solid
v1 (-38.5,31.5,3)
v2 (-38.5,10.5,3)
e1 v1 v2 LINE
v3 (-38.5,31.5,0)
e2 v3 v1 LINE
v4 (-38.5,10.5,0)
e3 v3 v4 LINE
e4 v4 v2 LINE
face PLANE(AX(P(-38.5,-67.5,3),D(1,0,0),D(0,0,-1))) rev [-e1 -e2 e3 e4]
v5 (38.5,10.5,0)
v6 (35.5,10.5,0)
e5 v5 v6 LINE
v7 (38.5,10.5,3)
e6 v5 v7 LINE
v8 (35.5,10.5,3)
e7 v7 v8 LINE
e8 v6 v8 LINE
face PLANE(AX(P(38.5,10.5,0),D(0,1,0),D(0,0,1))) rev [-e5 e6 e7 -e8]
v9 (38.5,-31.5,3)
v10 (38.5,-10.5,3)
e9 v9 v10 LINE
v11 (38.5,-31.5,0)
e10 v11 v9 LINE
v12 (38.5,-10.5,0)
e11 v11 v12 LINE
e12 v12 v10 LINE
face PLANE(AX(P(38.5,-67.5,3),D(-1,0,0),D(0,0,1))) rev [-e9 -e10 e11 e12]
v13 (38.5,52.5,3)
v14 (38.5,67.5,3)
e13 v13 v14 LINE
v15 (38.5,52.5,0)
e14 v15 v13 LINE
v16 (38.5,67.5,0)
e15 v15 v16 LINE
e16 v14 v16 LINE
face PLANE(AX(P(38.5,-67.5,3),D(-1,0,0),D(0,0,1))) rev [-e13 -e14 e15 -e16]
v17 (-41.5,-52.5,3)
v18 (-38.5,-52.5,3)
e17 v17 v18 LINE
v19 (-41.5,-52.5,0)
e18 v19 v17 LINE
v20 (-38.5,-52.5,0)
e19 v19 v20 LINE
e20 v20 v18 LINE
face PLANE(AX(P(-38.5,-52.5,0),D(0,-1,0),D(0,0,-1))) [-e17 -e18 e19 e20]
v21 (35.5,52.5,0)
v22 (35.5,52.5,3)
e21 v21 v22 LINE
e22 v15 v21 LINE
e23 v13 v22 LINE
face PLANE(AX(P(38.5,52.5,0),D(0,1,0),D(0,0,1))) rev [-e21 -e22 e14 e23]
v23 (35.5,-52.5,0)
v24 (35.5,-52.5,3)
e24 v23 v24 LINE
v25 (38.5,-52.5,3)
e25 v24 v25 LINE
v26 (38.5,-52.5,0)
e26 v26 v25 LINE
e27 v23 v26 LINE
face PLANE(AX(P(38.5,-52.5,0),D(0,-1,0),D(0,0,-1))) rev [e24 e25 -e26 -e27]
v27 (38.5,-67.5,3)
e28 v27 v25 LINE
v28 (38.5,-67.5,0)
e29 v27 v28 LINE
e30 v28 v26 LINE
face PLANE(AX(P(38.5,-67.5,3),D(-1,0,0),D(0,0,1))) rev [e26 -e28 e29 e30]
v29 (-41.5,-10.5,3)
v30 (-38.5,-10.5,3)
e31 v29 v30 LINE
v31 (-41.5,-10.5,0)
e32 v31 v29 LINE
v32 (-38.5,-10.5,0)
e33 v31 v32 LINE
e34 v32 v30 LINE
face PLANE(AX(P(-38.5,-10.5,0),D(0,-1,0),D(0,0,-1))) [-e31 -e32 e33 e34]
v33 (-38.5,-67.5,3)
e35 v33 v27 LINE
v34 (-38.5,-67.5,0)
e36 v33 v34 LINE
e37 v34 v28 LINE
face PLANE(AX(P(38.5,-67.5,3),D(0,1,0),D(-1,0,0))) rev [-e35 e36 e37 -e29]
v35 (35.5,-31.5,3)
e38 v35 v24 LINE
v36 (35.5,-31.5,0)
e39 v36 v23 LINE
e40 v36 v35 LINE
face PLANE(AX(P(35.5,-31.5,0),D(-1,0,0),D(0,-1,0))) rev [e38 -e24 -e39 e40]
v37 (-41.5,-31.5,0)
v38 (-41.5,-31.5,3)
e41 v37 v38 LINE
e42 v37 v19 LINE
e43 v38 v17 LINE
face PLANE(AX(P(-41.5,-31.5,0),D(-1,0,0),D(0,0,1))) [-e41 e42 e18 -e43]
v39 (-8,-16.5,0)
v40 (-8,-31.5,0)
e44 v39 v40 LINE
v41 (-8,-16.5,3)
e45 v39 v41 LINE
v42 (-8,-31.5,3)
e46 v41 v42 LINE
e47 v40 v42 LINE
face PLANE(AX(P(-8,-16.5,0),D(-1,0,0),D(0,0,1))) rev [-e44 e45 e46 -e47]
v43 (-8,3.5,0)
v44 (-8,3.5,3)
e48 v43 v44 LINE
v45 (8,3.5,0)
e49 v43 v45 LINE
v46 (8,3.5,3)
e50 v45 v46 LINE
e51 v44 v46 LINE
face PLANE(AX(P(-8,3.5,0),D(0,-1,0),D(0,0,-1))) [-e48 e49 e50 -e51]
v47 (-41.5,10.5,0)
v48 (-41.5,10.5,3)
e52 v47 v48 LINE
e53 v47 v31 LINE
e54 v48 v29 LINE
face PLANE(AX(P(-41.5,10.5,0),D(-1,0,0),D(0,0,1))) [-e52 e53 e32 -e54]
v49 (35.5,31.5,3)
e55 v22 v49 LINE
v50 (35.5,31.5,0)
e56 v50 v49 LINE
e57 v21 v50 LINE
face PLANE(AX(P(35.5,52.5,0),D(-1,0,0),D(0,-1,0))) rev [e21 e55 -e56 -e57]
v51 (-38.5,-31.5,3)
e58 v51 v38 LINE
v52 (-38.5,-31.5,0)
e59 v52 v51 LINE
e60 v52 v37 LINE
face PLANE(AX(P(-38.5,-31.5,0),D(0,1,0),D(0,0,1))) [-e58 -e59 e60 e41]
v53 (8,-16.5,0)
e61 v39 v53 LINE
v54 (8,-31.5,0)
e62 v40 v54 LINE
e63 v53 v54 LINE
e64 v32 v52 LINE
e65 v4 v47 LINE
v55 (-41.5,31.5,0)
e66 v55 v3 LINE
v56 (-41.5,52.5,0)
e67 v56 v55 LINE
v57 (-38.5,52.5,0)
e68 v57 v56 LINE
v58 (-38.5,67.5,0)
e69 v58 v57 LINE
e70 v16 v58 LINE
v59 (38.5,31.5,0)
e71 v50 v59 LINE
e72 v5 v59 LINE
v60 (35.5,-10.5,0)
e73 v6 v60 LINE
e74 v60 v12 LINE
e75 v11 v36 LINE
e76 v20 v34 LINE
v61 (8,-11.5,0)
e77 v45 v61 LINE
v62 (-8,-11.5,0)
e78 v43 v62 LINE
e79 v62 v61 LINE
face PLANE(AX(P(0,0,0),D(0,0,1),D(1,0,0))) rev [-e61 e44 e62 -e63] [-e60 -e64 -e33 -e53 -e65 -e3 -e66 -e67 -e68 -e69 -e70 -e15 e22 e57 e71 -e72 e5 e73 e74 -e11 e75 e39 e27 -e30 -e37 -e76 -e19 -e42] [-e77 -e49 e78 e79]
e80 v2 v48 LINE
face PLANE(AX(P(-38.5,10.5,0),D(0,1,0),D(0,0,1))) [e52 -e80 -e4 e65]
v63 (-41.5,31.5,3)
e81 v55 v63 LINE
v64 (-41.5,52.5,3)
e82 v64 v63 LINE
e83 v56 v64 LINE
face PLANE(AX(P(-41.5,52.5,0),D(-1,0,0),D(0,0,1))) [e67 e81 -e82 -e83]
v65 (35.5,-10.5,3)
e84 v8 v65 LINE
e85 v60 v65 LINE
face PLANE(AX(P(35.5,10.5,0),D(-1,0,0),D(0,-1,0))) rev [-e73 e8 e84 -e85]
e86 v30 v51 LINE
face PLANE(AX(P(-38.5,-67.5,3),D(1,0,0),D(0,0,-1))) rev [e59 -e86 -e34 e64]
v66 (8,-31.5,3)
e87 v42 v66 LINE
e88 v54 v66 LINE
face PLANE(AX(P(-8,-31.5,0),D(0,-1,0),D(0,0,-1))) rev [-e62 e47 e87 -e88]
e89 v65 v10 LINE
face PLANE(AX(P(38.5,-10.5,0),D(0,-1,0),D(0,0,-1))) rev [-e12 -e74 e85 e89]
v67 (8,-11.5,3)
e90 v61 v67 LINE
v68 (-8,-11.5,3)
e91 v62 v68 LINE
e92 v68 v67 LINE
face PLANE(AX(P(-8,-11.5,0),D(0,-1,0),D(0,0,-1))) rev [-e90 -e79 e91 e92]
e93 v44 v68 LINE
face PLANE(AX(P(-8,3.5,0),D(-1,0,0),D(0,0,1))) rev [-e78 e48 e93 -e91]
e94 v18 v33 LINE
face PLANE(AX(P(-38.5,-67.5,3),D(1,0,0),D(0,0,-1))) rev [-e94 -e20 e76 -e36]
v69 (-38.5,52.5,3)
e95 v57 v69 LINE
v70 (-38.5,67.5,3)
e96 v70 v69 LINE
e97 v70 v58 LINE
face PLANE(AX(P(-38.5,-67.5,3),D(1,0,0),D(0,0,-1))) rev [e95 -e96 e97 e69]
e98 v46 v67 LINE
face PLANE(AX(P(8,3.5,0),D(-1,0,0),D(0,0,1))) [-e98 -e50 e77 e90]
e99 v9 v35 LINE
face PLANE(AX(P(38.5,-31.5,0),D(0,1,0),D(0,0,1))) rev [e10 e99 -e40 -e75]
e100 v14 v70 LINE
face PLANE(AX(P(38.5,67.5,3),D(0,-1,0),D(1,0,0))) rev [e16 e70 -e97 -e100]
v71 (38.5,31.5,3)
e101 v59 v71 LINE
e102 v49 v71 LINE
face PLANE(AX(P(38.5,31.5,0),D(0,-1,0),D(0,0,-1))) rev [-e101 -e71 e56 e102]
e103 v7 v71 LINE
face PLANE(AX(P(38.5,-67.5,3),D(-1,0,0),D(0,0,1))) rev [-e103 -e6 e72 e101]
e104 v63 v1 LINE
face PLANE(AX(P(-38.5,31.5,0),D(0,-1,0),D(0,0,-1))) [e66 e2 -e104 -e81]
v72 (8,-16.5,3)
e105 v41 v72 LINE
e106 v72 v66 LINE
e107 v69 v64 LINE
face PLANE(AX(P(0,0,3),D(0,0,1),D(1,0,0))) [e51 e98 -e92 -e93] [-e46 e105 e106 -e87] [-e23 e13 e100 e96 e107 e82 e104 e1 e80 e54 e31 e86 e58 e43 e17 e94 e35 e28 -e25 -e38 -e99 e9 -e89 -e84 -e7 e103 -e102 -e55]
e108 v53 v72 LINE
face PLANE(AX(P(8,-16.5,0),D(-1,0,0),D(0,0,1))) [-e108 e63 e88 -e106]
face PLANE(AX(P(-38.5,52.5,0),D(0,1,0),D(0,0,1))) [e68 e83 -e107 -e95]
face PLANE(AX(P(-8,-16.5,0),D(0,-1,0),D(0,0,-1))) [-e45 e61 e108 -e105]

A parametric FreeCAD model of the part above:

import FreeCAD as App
import Part
import Sketcher
Q = App.Units.Quantity

doc = App.newDocument("Part")
params = doc.addObject("Spreadsheet::Sheet", "Params")
for row, (alias, value) in enumerate([
    ("sketch1_width", "77 mm"),
    ("sketch1_height", "135 mm"),
    ("pad1_length", "3 mm"),
    ("sketch2_width", "3 mm"),
    ("sketch2_height", "21 mm"),
    ("sketch3_width", "3 mm"),
    ("sketch3_height", "21 mm"),
    ("pad2_length", "3 mm"),
    ("linearpattern_pitch", "42 mm"),
    ("sketch4_width", "16 mm"),
    ("sketch4_height", "15 mm"),
    ("linearpattern2_pitch", "20 mm"),
], start=1):
    params.set(f"A{row}", alias)
    params.set(f"B{row}", "=" + value)
    params.setAlias(f"B{row}", alias)

body = doc.addObject("PartDesign::Body", "Body")

sketch1 = doc.addObject("Sketcher::SketchObject", "Sketch")
body.addObject(sketch1)
sketch1.AttachmentSupport = (doc.XY_Plane, [""])
sketch1.MapMode = "FlatFace"
sketch1.addGeometry(Part.LineSegment(App.Vector(-38.5, 67.5, 0), App.Vector(-38.5, -67.5, 0)), False)
sketch1.addGeometry(Part.LineSegment(App.Vector(-38.5, -67.5, 0), App.Vector(38.5, -67.5, 0)), False)
sketch1.addGeometry(Part.LineSegment(App.Vector(38.5, -67.5, 0), App.Vector(38.5, 67.5, 0)), False)
sketch1.addGeometry(Part.LineSegment(App.Vector(38.5, 67.5, 0), App.Vector(-38.5, 67.5, 0)), False)
sketch1.addConstraint(Sketcher.Constraint("Coincident", 0, 2, 1, 1))
sketch1.addConstraint(Sketcher.Constraint("Coincident", 1, 2, 2, 1))
sketch1.addConstraint(Sketcher.Constraint("Coincident", 2, 2, 3, 1))
sketch1.addConstraint(Sketcher.Constraint("Coincident", 3, 2, 0, 1))
sketch1.addConstraint(Sketcher.Constraint("Vertical", 0))
sketch1.addConstraint(Sketcher.Constraint("Horizontal", 1))
sketch1.addConstraint(Sketcher.Constraint("Vertical", 2))
sketch1.addConstraint(Sketcher.Constraint("Horizontal", 3))
sketch1.addConstraint(Sketcher.Constraint("Symmetric", 0, 2, 2, 2, -1, 1))
sketch1.addConstraint(Sketcher.Constraint("DistanceX", 1, 1, 1, 2, Q("77 mm")))
sketch1.addConstraint(Sketcher.Constraint("DistanceY", 0, 2, 0, 1, Q("135 mm")))
sketch1.setExpression("Constraints[9]", "Params.sketch1_width")
sketch1.setExpression("Constraints[10]", "Params.sketch1_height")
pad1 = doc.addObject("PartDesign::Pad", "Pad")
body.addObject(pad1)
pad1.Profile = sketch1
pad1.setExpression("Length", "Params.pad1_length")

sketch2 = doc.addObject("Sketcher::SketchObject", "Sketch001")
body.addObject(sketch2)
sketch2.AttachmentSupport = (doc.XY_Plane, [""])
sketch2.MapMode = "FlatFace"
sketch2.AttachmentOffset = App.Placement(App.Vector(0, 0, 3), App.Rotation())
sketch2.addGeometry(Part.LineSegment(App.Vector(35.5, 52.5, 0), App.Vector(35.5, 31.5, 0)), False)
sketch2.addGeometry(Part.LineSegment(App.Vector(35.5, 31.5, 0), App.Vector(38.5, 31.5, 0)), False)
sketch2.addGeometry(Part.LineSegment(App.Vector(38.5, 31.5, 0), App.Vector(38.5, 52.5, 0)), False)
sketch2.addGeometry(Part.LineSegment(App.Vector(38.5, 52.5, 0), App.Vector(35.5, 52.5, 0)), False)
sketch2.addGeometry(Part.LineSegment(App.Vector(35.5, 10.5, 0), App.Vector(35.5, -10.5, 0)), False)
sketch2.addGeometry(Part.LineSegment(App.Vector(35.5, -10.5, 0), App.Vector(38.5, -10.5, 0)), False)
sketch2.addGeometry(Part.LineSegment(App.Vector(38.5, -10.5, 0), App.Vector(38.5, 10.5, 0)), False)
sketch2.addGeometry(Part.LineSegment(App.Vector(38.5, 10.5, 0), App.Vector(35.5, 10.5, 0)), False)
sketch2.addGeometry(Part.LineSegment(App.Vector(35.5, -31.5, 0), App.Vector(35.5, -52.5, 0)), False)
sketch2.addGeometry(Part.LineSegment(App.Vector(35.5, -52.5, 0), App.Vector(38.5, -52.5, 0)), False)
sketch2.addGeometry(Part.LineSegment(App.Vector(38.5, -52.5, 0), App.Vector(38.5, -31.5, 0)), False)
sketch2.addGeometry(Part.LineSegment(App.Vector(38.5, -31.5, 0), App.Vector(35.5, -31.5, 0)), False)
sketch2.addConstraint(Sketcher.Constraint("Coincident", 0, 2, 1, 1))
sketch2.addConstraint(Sketcher.Constraint("Coincident", 1, 2, 2, 1))
sketch2.addConstraint(Sketcher.Constraint("Coincident", 2, 2, 3, 1))
sketch2.addConstraint(Sketcher.Constraint("Coincident", 3, 2, 0, 1))
sketch2.addConstraint(Sketcher.Constraint("Coincident", 4, 2, 5, 1))
sketch2.addConstraint(Sketcher.Constraint("Coincident", 5, 2, 6, 1))
sketch2.addConstraint(Sketcher.Constraint("Coincident", 6, 2, 7, 1))
sketch2.addConstraint(Sketcher.Constraint("Coincident", 7, 2, 4, 1))
sketch2.addConstraint(Sketcher.Constraint("Coincident", 8, 2, 9, 1))
sketch2.addConstraint(Sketcher.Constraint("Coincident", 9, 2, 10, 1))
sketch2.addConstraint(Sketcher.Constraint("Coincident", 10, 2, 11, 1))
sketch2.addConstraint(Sketcher.Constraint("Coincident", 11, 2, 8, 1))
sketch2.addConstraint(Sketcher.Constraint("Vertical", 0))
sketch2.addConstraint(Sketcher.Constraint("Horizontal", 1))
sketch2.addConstraint(Sketcher.Constraint("Vertical", 2))
sketch2.addConstraint(Sketcher.Constraint("Horizontal", 3))
sketch2.addConstraint(Sketcher.Constraint("Vertical", 4))
sketch2.addConstraint(Sketcher.Constraint("Horizontal", 5))
sketch2.addConstraint(Sketcher.Constraint("Vertical", 6))
sketch2.addConstraint(Sketcher.Constraint("Horizontal", 7))
sketch2.addConstraint(Sketcher.Constraint("Vertical", 8))
sketch2.addConstraint(Sketcher.Constraint("Horizontal", 9))
sketch2.addConstraint(Sketcher.Constraint("Vertical", 10))
sketch2.addConstraint(Sketcher.Constraint("Horizontal", 11))
sketch2.addConstraint(Sketcher.Constraint("Symmetric", 3, 2, 8, 2, -1))
sketch2.addConstraint(Sketcher.Constraint("Symmetric", 1, 2, 10, 2, -1))
sketch2.addConstraint(Sketcher.Constraint("Vertical", 3, 2, 4, 2))
sketch2.addConstraint(Sketcher.Constraint("Vertical", 2, 2, 5, 2))
sketch2.addConstraint(Sketcher.Constraint("Equal", 2, 4))
sketch2.addConstraint(Sketcher.Constraint("DistanceX", 1, 1, 1, 2, Q("3 mm")))
sketch2.addConstraint(Sketcher.Constraint("DistanceY", 0, 2, 0, 1, Q("21 mm")))
sketch2.addConstraint(Sketcher.Constraint("DistanceY", 4, 2, 0, 2, Q("42 mm")))
sketch2.addConstraint(Sketcher.Constraint("DistanceY", 8, 2, 4, 2, Q("42 mm")))
sketch2.addConstraint(Sketcher.Constraint("DistanceX", -1, 1, 0, 2, Q("35.5 mm")))
sketch2.setExpression("Constraints[29]", "Params.sketch2_width")
sketch2.setExpression("Constraints[30]", "Params.sketch2_height")
pocket1 = doc.addObject("PartDesign::Pocket", "Pocket")
body.addObject(pocket1)
pocket1.Profile = sketch2
pocket1.Type = "ThroughAll"

sketch3 = doc.addObject("Sketcher::SketchObject", "Sketch002")
body.addObject(sketch3)
sketch3.AttachmentSupport = (doc.XY_Plane, [""])
sketch3.MapMode = "FlatFace"
sketch3.AttachmentOffset = App.Placement(App.Vector(0, 0, 3), App.Rotation())
sketch3.addGeometry(Part.LineSegment(App.Vector(-41.5, 52.5, 0), App.Vector(-41.5, 31.5, 0)), False)
sketch3.addGeometry(Part.LineSegment(App.Vector(-41.5, 31.5, 0), App.Vector(-38.5, 31.5, 0)), False)
sketch3.addGeometry(Part.LineSegment(App.Vector(-38.5, 31.5, 0), App.Vector(-38.5, 52.5, 0)), False)
sketch3.addGeometry(Part.LineSegment(App.Vector(-38.5, 52.5, 0), App.Vector(-41.5, 52.5, 0)), False)
sketch3.addConstraint(Sketcher.Constraint("Coincident", 0, 2, 1, 1))
sketch3.addConstraint(Sketcher.Constraint("Coincident", 1, 2, 2, 1))
sketch3.addConstraint(Sketcher.Constraint("Coincident", 2, 2, 3, 1))
sketch3.addConstraint(Sketcher.Constraint("Coincident", 3, 2, 0, 1))
sketch3.addConstraint(Sketcher.Constraint("Vertical", 0))
sketch3.addConstraint(Sketcher.Constraint("Horizontal", 1))
sketch3.addConstraint(Sketcher.Constraint("Vertical", 2))
sketch3.addConstraint(Sketcher.Constraint("Horizontal", 3))
sketch3.addConstraint(Sketcher.Constraint("DistanceX", 1, 1, 1, 2, Q("3 mm")))
sketch3.addConstraint(Sketcher.Constraint("DistanceY", 0, 2, 0, 1, Q("21 mm")))
sketch3.addConstraint(Sketcher.Constraint("DistanceX", 0, 2, -1, 1, Q("41.5 mm")))
sketch3.addConstraint(Sketcher.Constraint("DistanceY", -1, 1, 0, 2, Q("31.5 mm")))
sketch3.setExpression("Constraints[8]", "Params.sketch3_width")
sketch3.setExpression("Constraints[9]", "Params.sketch3_height")
pad2 = doc.addObject("PartDesign::Pad", "Pad001")
body.addObject(pad2)
pad2.Profile = sketch3
pad2.setExpression("Length", "Params.pad2_length")
pad2.Reversed = True
doc.recompute()

linearpattern = doc.addObject("PartDesign::LinearPattern", "LinearPattern")
body.addObject(linearpattern)
linearpattern.Originals = [pad2]
linearpattern.Direction = (doc.Y_Axis, [""])
linearpattern.Mode = "offset"
linearpattern.setExpression("Offset", "Params.linearpattern_pitch")
linearpattern.Occurrences = 3
linearpattern.Reversed = True
body.Tip = linearpattern

sketch4 = doc.addObject("Sketcher::SketchObject", "Sketch003")
body.addObject(sketch4)
sketch4.AttachmentSupport = (doc.XY_Plane, [""])
sketch4.MapMode = "FlatFace"
sketch4.AttachmentOffset = App.Placement(App.Vector(0, 0, 3), App.Rotation())
sketch4.addGeometry(Part.LineSegment(App.Vector(-8, -16.5, 0), App.Vector(-8, -31.5, 0)), False)
sketch4.addGeometry(Part.LineSegment(App.Vector(-8, -31.5, 0), App.Vector(8, -31.5, 0)), False)
sketch4.addGeometry(Part.LineSegment(App.Vector(8, -31.5, 0), App.Vector(8, -16.5, 0)), False)
sketch4.addGeometry(Part.LineSegment(App.Vector(8, -16.5, 0), App.Vector(-8, -16.5, 0)), False)
sketch4.addConstraint(Sketcher.Constraint("Coincident", 0, 2, 1, 1))
sketch4.addConstraint(Sketcher.Constraint("Coincident", 1, 2, 2, 1))
sketch4.addConstraint(Sketcher.Constraint("Coincident", 2, 2, 3, 1))
sketch4.addConstraint(Sketcher.Constraint("Coincident", 3, 2, 0, 1))
sketch4.addConstraint(Sketcher.Constraint("Vertical", 0))
sketch4.addConstraint(Sketcher.Constraint("Horizontal", 1))
sketch4.addConstraint(Sketcher.Constraint("Vertical", 2))
sketch4.addConstraint(Sketcher.Constraint("Horizontal", 3))
sketch4.addConstraint(Sketcher.Constraint("DistanceX", 1, 1, 1, 2, Q("16 mm")))
sketch4.addConstraint(Sketcher.Constraint("DistanceY", 0, 2, 0, 1, Q("15 mm")))
sketch4.addConstraint(Sketcher.Constraint("DistanceX", 0, 2, -1, 1, Q("8 mm")))
sketch4.addConstraint(Sketcher.Constraint("DistanceY", 0, 2, -1, 1, Q("31.5 mm")))
sketch4.setExpression("Constraints[8]", "Params.sketch4_width")
sketch4.setExpression("Constraints[9]", "Params.sketch4_height")
pocket2 = doc.addObject("PartDesign::Pocket", "Pocket001")
body.addObject(pocket2)
pocket2.Profile = sketch4
pocket2.Type = "ThroughAll"
doc.recompute()

linearpattern2 = doc.addObject("PartDesign::LinearPattern", "LinearPattern001")
body.addObject(linearpattern2)
linearpattern2.Originals = [pocket2]
linearpattern2.Direction = (doc.Y_Axis, [""])
linearpattern2.Mode = "offset"
linearpattern2.setExpression("Offset", "Params.linearpattern2_pitch")
linearpattern2.Occurrences = 2
body.Tip = linearpattern2

doc.recompute()
